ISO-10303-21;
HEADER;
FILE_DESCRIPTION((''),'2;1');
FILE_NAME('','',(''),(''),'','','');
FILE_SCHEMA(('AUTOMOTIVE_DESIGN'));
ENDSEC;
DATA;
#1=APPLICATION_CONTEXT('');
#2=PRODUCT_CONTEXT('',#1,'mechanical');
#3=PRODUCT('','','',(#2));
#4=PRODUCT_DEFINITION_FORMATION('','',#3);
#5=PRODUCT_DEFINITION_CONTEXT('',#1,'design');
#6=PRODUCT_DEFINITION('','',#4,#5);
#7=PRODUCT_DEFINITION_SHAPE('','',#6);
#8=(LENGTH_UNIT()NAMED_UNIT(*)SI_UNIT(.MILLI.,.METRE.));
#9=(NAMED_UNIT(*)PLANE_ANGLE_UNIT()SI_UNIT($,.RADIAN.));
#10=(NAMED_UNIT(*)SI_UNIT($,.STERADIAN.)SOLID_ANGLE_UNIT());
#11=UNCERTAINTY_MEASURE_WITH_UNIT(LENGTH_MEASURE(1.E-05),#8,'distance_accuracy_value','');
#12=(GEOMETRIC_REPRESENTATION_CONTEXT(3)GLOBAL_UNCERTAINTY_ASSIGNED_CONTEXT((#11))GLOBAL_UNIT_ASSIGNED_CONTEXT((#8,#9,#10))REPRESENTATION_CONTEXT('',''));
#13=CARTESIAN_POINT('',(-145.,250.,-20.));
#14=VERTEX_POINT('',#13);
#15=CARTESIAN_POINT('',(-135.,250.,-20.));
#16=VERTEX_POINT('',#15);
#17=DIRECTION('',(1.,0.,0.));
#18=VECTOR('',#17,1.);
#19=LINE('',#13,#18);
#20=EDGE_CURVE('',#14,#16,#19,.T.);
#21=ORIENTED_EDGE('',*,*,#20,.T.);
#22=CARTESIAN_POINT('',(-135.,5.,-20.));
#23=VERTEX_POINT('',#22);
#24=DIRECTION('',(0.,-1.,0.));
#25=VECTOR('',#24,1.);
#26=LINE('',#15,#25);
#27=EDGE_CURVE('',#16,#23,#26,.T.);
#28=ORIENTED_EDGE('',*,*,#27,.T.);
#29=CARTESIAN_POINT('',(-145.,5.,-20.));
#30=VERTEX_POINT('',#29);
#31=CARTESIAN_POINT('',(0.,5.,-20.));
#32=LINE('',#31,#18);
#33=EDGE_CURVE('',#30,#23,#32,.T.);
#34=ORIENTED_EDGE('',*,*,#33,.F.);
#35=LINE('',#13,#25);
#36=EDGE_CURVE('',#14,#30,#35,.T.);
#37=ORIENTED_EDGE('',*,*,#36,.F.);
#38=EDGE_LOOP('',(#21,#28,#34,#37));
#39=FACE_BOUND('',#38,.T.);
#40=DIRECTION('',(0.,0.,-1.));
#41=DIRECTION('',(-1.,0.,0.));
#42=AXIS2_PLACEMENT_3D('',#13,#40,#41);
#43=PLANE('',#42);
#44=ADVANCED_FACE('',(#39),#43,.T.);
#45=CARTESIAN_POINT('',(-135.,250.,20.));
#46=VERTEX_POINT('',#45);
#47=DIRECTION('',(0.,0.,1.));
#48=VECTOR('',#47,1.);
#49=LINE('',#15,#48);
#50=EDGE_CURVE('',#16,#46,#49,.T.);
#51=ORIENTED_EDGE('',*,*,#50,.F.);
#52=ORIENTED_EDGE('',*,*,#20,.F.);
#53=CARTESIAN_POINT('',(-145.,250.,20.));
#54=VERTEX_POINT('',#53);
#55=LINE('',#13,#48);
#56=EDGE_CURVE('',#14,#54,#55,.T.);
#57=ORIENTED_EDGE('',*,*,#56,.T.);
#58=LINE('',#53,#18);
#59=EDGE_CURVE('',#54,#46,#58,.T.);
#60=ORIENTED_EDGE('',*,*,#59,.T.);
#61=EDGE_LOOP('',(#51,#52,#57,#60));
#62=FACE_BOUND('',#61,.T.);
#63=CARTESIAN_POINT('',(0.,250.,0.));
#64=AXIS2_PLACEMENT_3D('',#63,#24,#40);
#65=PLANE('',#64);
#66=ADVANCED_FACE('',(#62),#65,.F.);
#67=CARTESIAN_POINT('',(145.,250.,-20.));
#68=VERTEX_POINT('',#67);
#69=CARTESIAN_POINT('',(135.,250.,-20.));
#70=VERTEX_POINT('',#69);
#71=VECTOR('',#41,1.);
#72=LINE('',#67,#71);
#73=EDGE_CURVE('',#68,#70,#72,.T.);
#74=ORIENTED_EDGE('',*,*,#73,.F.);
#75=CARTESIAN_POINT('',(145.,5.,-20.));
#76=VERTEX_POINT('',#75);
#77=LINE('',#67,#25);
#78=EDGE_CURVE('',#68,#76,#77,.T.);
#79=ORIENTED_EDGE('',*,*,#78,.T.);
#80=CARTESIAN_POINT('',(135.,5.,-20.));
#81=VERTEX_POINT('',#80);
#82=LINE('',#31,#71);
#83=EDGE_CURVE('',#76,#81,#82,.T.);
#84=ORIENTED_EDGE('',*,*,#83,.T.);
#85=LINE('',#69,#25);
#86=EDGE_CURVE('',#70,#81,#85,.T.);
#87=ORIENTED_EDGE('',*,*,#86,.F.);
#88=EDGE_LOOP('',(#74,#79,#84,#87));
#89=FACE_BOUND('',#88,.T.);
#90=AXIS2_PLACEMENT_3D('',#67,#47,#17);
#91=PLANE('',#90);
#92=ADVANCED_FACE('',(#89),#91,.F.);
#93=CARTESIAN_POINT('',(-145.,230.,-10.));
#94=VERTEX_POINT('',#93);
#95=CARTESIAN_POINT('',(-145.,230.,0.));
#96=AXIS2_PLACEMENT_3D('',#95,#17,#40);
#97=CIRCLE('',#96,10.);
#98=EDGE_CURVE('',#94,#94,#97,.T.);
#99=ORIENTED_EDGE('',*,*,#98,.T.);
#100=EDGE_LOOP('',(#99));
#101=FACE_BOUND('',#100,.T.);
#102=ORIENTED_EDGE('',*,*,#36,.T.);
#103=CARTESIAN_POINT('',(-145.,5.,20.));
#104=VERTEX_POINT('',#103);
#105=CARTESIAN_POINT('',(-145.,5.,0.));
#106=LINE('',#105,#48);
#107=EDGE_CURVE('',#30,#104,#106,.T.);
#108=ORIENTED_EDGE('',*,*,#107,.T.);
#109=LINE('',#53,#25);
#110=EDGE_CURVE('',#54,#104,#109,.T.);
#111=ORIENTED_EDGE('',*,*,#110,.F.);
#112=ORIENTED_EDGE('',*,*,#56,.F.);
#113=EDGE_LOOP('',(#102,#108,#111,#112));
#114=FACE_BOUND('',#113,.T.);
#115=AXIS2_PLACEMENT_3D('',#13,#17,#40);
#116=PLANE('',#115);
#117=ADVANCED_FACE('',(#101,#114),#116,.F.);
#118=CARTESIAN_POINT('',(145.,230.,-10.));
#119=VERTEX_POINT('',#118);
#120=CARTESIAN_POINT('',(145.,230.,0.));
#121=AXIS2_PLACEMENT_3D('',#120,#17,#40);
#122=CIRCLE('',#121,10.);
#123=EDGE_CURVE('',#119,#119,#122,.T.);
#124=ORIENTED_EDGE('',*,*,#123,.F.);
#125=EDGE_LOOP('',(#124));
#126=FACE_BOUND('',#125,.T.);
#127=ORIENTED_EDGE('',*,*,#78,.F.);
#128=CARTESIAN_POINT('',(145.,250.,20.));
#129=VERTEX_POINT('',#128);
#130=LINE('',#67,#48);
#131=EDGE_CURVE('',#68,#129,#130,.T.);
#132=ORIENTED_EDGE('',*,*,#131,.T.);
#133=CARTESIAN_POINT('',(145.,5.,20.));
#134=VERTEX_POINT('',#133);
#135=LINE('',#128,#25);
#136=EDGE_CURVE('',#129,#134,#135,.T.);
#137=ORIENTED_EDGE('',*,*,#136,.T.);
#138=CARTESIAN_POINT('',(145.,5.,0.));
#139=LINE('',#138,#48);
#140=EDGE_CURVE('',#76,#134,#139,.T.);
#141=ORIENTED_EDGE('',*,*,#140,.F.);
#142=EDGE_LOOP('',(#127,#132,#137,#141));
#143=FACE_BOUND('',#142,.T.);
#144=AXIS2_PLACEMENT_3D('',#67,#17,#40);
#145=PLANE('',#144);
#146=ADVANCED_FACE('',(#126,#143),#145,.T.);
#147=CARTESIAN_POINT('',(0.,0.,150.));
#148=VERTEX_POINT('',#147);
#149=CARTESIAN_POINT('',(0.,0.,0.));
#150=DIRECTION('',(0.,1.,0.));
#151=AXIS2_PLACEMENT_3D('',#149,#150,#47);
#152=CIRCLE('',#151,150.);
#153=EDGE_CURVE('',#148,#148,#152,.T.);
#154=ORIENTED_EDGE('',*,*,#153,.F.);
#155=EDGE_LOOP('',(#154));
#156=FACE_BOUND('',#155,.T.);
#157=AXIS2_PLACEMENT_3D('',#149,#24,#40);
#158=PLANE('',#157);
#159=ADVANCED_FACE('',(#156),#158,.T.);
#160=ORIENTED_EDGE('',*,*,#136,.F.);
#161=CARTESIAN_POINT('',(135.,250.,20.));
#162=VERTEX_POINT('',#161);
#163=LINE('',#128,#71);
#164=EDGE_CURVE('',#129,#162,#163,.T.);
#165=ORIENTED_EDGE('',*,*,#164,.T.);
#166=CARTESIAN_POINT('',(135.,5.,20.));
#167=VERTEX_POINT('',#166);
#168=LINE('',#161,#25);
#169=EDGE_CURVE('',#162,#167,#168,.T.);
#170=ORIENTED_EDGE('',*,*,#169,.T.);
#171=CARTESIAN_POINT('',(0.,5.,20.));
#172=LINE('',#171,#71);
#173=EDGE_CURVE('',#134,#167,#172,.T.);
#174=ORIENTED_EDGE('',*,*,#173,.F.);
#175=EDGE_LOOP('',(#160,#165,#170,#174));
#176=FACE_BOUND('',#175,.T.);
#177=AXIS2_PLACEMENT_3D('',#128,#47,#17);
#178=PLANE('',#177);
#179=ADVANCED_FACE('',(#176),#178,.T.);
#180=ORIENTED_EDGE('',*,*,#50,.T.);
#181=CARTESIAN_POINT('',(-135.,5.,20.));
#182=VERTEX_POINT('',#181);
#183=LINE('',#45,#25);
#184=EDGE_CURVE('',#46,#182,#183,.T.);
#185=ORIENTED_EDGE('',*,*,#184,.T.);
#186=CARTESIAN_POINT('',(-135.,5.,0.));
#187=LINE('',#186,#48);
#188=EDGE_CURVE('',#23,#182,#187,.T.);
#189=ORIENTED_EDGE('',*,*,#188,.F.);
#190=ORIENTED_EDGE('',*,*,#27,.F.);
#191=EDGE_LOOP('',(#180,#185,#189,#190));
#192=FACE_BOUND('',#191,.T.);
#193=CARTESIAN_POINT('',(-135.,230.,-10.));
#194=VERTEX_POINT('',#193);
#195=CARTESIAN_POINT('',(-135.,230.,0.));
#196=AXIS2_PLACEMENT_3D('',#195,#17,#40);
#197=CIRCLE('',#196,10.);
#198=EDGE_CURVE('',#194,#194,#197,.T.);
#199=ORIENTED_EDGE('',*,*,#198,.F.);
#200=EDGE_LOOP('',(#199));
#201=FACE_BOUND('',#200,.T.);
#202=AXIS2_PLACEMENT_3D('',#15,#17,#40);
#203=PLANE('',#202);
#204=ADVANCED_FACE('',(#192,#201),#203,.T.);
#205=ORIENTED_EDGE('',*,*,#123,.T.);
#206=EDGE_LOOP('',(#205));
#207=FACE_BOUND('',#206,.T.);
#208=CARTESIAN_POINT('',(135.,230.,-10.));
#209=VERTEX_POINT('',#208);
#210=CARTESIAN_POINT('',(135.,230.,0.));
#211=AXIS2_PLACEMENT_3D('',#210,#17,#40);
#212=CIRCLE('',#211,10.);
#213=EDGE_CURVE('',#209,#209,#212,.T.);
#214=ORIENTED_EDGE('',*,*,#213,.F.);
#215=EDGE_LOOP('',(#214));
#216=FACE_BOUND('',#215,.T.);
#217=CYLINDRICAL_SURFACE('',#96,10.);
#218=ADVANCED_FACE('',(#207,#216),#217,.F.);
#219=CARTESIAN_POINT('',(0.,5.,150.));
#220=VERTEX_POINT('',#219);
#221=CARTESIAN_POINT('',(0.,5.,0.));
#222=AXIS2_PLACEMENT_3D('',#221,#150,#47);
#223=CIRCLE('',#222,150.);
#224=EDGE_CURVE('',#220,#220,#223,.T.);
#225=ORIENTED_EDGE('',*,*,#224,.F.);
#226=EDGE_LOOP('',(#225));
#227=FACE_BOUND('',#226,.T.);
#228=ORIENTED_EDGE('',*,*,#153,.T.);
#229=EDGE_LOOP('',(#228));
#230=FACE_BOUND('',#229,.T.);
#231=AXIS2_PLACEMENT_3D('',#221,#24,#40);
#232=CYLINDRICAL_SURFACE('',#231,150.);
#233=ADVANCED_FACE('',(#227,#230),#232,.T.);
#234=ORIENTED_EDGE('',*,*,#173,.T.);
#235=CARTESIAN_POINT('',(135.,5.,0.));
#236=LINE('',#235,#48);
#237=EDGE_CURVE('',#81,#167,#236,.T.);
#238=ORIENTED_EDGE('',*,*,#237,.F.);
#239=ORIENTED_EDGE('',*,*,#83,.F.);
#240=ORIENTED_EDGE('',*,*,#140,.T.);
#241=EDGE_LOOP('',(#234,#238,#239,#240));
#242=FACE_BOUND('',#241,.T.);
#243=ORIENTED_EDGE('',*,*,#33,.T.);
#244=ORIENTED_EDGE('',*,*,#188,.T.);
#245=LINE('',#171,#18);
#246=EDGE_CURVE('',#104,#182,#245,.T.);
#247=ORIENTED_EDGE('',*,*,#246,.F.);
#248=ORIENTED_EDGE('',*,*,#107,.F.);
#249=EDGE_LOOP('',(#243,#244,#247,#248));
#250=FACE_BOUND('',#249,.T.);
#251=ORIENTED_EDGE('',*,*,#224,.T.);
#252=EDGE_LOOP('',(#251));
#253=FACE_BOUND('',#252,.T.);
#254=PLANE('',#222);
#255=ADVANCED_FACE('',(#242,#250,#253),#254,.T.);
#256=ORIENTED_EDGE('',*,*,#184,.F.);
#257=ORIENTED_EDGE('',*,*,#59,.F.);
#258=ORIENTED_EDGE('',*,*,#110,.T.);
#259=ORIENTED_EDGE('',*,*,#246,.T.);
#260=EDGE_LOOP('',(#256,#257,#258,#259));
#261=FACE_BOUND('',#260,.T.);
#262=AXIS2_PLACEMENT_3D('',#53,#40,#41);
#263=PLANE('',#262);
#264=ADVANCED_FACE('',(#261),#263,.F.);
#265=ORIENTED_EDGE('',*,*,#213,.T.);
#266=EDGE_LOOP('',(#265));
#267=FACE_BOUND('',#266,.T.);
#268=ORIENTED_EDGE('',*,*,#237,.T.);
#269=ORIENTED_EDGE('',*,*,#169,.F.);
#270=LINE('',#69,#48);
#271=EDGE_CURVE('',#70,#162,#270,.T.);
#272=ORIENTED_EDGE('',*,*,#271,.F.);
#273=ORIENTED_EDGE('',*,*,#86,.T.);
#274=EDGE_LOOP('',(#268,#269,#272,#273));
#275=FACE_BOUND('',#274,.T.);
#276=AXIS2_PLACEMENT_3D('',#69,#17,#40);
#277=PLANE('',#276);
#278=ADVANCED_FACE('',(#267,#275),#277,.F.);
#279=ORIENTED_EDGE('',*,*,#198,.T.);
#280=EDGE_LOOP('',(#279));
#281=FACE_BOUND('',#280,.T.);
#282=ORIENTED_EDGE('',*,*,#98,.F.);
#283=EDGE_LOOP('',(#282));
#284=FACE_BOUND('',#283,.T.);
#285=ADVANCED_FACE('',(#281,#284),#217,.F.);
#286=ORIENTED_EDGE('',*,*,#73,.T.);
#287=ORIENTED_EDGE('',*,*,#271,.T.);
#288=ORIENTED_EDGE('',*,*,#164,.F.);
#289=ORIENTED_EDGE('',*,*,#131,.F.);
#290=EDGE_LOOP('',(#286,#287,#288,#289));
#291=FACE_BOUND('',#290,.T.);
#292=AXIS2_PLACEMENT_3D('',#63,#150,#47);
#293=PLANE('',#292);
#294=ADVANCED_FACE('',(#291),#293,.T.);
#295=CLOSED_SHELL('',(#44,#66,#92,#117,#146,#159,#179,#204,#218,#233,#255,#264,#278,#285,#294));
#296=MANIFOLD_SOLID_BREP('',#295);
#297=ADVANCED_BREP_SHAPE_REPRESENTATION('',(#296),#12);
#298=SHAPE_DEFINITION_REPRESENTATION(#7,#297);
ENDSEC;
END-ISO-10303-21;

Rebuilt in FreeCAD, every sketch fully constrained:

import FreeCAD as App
import Part
import Sketcher

V = App.Vector
Q = App.Units.Quantity

doc = App.newDocument("Part")
params = doc.addObject("Spreadsheet::Sheet", "Params")
for row, (alias, value) in enumerate([
    ("sketch1_width", "10 mm"),
    ("sketch1_height", "40 mm"),
    ("pad1_length", "250 mm"),
    ("sketch2_width", "10 mm"),
    ("sketch2_height", "40 mm"),
    ("pad2_length", "250 mm"),
    ("sketch3_diameter", "300 mm"),
    ("pad3_length", "5 mm"),
    ("sketch4_diameter", "20 mm"),
    ("pocket1_length", "290 mm"),
], start=1):
    params.set(f"A{row}", alias)
    params.set(f"B{row}", "=" + value)
    params.setAlias(f"B{row}", alias)

body = doc.addObject("PartDesign::Body", "Body")

# Sketch on XZ plane
sketch1 = doc.addObject("Sketcher::SketchObject", "Sketch")
body.addObject(sketch1)
sketch1.AttachmentSupport = (doc.XZ_Plane, [""])
sketch1.MapMode = "FlatFace"
sketch1.addGeometry(Part.LineSegment(V(135, -20, 0), V(135, 20, 0)), False)
sketch1.addGeometry(Part.LineSegment(V(135, 20, 0), V(145, 20, 0)), False)
sketch1.addGeometry(Part.LineSegment(V(145, 20, 0), V(145, -20, 0)), False)
sketch1.addGeometry(Part.LineSegment(V(145, -20, 0), V(135, -20, 0)), False)
sketch1.addConstraint(Sketcher.Constraint("Coincident", 0, 2, 1, 1))
sketch1.addConstraint(Sketcher.Constraint("Coincident", 1, 2, 2, 1))
sketch1.addConstraint(Sketcher.Constraint("Coincident", 2, 2, 3, 1))
sketch1.addConstraint(Sketcher.Constraint("Coincident", 3, 2, 0, 1))
sketch1.addConstraint(Sketcher.Constraint("Vertical", 0))
sketch1.addConstraint(Sketcher.Constraint("Horizontal", 1))
sketch1.addConstraint(Sketcher.Constraint("Vertical", 2))
sketch1.addConstraint(Sketcher.Constraint("Horizontal", 3))
sketch1.addConstraint(Sketcher.Constraint("DistanceX", 1, 1, 1, 2, Q("10 mm")))
sketch1.addConstraint(Sketcher.Constraint("DistanceY", 0, 1, 0, 2, Q("40 mm")))
sketch1.addConstraint(Sketcher.Constraint("DistanceX", -1, 1, 0, 2, Q("135 mm")))
sketch1.addConstraint(Sketcher.Constraint("DistanceY", -1, 1, 0, 2, Q("20 mm")))
sketch1.setExpression("Constraints[8]", "Params.sketch1_width")
sketch1.setExpression("Constraints[9]", "Params.sketch1_height")
pad1 = doc.addObject("PartDesign::Pad", "Pad")
body.addObject(pad1)
pad1.Profile = sketch1
pad1.setExpression("Length", "Params.pad1_length")
pad1.Reversed = True
body2 = doc.addObject("PartDesign::Body", "Body001")

# Sketch on XZ plane
sketch2 = doc.addObject("Sketcher::SketchObject", "Sketch001")
body2.addObject(sketch2)
sketch2.AttachmentSupport = (doc.getObject("XZ_Plane001"), [""])
sketch2.MapMode = "FlatFace"
sketch2.addGeometry(Part.LineSegment(V(-145, -20, 0), V(-145, 20, 0)), False)
sketch2.addGeometry(Part.LineSegment(V(-145, 20, 0), V(-135, 20, 0)), False)
sketch2.addGeometry(Part.LineSegment(V(-135, 20, 0), V(-135, -20, 0)), False)
sketch2.addGeometry(Part.LineSegment(V(-135, -20, 0), V(-145, -20, 0)), False)
sketch2.addConstraint(Sketcher.Constraint("Coincident", 0, 2, 1, 1))
sketch2.addConstraint(Sketcher.Constraint("Coincident", 1, 2, 2, 1))
sketch2.addConstraint(Sketcher.Constraint("Coincident", 2, 2, 3, 1))
sketch2.addConstraint(Sketcher.Constraint("Coincident", 3, 2, 0, 1))
sketch2.addConstraint(Sketcher.Constraint("Vertical", 0))
sketch2.addConstraint(Sketcher.Constraint("Horizontal", 1))
sketch2.addConstraint(Sketcher.Constraint("Vertical", 2))
sketch2.addConstraint(Sketcher.Constraint("Horizontal", 3))
sketch2.addConstraint(Sketcher.Constraint("DistanceX", 1, 1, 1, 2, Q("10 mm")))
sketch2.addConstraint(Sketcher.Constraint("DistanceY", 0, 1, 0, 2, Q("40 mm")))
sketch2.addConstraint(Sketcher.Constraint("DistanceX", 0, 2, -1, 1, Q("145 mm")))
sketch2.addConstraint(Sketcher.Constraint("DistanceY", -1, 1, 0, 2, Q("20 mm")))
sketch2.setExpression("Constraints[8]", "Params.sketch2_width")
sketch2.setExpression("Constraints[9]", "Params.sketch2_height")
pad2 = doc.addObject("PartDesign::Pad", "Pad001")
body2.addObject(pad2)
pad2.Profile = sketch2
pad2.setExpression("Length", "Params.pad2_length")
pad2.Reversed = True
body.AllowCompound = True
doc.recompute()

boolean = doc.addObject("PartDesign::Boolean", "Boolean")
body.addObject(boolean)
boolean.Type = "Fuse"
boolean.addObjects([body2])

# Sketch on XZ plane
sketch3 = doc.addObject("Sketcher::SketchObject", "Sketch002")
body.addObject(sketch3)
sketch3.AttachmentSupport = (doc.XZ_Plane, [""])
sketch3.MapMode = "FlatFace"
sketch3.addGeometry(Part.Circle(V(0, 0, 0), V(0, 0, 1), 150), False)
sketch3.addConstraint(Sketcher.Constraint("Coincident", 0, 3, -1, 1))
sketch3.addConstraint(Sketcher.Constraint("Diameter", 0, Q("300 mm")))
sketch3.setExpression("Constraints[1]", "Params.sketch3_diameter")
pad3 = doc.addObject("PartDesign::Pad", "Pad002")
body.addObject(pad3)
pad3.Profile = sketch3
pad3.setExpression("Length", "Params.pad3_length")
pad3.Reversed = True

# Sketch on YZ plane
sketch4 = doc.addObject("Sketcher::SketchObject", "Sketch003")
body.addObject(sketch4)
sketch4.AttachmentSupport = (doc.YZ_Plane, [""])
sketch4.MapMode = "FlatFace"
sketch4.AttachmentOffset = App.Placement(V(0, 0, 145), App.Rotation())
sketch4.addGeometry(Part.Circle(V(230, 0, 0), V(0, 0, 1), 10), False)
sketch4.addConstraint(Sketcher.Constraint("PointOnObject", 0, 3, -1))
sketch4.addConstraint(Sketcher.Constraint("Diameter", 0, Q("20 mm")))
sketch4.addConstraint(Sketcher.Constraint("DistanceX", -1, 1, 0, 3, Q("230 mm")))
sketch4.setExpression("Constraints[1]", "Params.sketch4_diameter")
pocket1 = doc.addObject("PartDesign::Pocket", "Pocket")
body.addObject(pocket1)
pocket1.Profile = sketch4
pocket1.setExpression("Length", "Params.pocket1_length")

doc.recompute()
